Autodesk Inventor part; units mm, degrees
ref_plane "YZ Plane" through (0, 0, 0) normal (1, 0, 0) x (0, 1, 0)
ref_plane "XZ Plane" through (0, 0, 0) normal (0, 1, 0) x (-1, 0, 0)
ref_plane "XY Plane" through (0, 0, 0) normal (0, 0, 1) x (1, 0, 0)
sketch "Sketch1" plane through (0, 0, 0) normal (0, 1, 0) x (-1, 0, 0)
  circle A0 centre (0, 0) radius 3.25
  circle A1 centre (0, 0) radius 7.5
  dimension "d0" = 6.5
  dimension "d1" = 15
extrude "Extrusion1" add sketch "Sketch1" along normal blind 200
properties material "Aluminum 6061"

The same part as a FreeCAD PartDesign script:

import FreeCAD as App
import Part
import Sketcher
Q = App.Units.Quantity

doc = App.newDocument("Part")
body = doc.addObject("PartDesign::Body", "Body")

sketch1 = body.newObject("Sketcher::SketchObject", "Sketch")
sketch1.AttachmentSupport = (doc.getObject("XZ_Plane"), [""])
sketch1.MapMode = "FlatFace"
sketch1.addGeometry(Part.Circle(App.Vector(0, 0, 0), App.Vector(0, 0, 1), 7.5), False)
sketch1.addGeometry(Part.Circle(App.Vector(0, 0, 0), App.Vector(0, 0, 1), 3.25), False)
sketch1.addConstraint(Sketcher.Constraint("Coincident", 0, 3, -1, 1))
sketch1.addConstraint(Sketcher.Constraint("Coincident", 1, 3, -1, 1))
sketch1.addConstraint(Sketcher.Constraint("Diameter", 0, Q("15 mm")))
sketch1.addConstraint(Sketcher.Constraint("Diameter", 1, Q("6.5 mm")))
pad1 = body.newObject("PartDesign::Pad", "Pad")
pad1.Profile = sketch1
pad1.Length = 200
pad1.Reversed = True

doc.recompute()
